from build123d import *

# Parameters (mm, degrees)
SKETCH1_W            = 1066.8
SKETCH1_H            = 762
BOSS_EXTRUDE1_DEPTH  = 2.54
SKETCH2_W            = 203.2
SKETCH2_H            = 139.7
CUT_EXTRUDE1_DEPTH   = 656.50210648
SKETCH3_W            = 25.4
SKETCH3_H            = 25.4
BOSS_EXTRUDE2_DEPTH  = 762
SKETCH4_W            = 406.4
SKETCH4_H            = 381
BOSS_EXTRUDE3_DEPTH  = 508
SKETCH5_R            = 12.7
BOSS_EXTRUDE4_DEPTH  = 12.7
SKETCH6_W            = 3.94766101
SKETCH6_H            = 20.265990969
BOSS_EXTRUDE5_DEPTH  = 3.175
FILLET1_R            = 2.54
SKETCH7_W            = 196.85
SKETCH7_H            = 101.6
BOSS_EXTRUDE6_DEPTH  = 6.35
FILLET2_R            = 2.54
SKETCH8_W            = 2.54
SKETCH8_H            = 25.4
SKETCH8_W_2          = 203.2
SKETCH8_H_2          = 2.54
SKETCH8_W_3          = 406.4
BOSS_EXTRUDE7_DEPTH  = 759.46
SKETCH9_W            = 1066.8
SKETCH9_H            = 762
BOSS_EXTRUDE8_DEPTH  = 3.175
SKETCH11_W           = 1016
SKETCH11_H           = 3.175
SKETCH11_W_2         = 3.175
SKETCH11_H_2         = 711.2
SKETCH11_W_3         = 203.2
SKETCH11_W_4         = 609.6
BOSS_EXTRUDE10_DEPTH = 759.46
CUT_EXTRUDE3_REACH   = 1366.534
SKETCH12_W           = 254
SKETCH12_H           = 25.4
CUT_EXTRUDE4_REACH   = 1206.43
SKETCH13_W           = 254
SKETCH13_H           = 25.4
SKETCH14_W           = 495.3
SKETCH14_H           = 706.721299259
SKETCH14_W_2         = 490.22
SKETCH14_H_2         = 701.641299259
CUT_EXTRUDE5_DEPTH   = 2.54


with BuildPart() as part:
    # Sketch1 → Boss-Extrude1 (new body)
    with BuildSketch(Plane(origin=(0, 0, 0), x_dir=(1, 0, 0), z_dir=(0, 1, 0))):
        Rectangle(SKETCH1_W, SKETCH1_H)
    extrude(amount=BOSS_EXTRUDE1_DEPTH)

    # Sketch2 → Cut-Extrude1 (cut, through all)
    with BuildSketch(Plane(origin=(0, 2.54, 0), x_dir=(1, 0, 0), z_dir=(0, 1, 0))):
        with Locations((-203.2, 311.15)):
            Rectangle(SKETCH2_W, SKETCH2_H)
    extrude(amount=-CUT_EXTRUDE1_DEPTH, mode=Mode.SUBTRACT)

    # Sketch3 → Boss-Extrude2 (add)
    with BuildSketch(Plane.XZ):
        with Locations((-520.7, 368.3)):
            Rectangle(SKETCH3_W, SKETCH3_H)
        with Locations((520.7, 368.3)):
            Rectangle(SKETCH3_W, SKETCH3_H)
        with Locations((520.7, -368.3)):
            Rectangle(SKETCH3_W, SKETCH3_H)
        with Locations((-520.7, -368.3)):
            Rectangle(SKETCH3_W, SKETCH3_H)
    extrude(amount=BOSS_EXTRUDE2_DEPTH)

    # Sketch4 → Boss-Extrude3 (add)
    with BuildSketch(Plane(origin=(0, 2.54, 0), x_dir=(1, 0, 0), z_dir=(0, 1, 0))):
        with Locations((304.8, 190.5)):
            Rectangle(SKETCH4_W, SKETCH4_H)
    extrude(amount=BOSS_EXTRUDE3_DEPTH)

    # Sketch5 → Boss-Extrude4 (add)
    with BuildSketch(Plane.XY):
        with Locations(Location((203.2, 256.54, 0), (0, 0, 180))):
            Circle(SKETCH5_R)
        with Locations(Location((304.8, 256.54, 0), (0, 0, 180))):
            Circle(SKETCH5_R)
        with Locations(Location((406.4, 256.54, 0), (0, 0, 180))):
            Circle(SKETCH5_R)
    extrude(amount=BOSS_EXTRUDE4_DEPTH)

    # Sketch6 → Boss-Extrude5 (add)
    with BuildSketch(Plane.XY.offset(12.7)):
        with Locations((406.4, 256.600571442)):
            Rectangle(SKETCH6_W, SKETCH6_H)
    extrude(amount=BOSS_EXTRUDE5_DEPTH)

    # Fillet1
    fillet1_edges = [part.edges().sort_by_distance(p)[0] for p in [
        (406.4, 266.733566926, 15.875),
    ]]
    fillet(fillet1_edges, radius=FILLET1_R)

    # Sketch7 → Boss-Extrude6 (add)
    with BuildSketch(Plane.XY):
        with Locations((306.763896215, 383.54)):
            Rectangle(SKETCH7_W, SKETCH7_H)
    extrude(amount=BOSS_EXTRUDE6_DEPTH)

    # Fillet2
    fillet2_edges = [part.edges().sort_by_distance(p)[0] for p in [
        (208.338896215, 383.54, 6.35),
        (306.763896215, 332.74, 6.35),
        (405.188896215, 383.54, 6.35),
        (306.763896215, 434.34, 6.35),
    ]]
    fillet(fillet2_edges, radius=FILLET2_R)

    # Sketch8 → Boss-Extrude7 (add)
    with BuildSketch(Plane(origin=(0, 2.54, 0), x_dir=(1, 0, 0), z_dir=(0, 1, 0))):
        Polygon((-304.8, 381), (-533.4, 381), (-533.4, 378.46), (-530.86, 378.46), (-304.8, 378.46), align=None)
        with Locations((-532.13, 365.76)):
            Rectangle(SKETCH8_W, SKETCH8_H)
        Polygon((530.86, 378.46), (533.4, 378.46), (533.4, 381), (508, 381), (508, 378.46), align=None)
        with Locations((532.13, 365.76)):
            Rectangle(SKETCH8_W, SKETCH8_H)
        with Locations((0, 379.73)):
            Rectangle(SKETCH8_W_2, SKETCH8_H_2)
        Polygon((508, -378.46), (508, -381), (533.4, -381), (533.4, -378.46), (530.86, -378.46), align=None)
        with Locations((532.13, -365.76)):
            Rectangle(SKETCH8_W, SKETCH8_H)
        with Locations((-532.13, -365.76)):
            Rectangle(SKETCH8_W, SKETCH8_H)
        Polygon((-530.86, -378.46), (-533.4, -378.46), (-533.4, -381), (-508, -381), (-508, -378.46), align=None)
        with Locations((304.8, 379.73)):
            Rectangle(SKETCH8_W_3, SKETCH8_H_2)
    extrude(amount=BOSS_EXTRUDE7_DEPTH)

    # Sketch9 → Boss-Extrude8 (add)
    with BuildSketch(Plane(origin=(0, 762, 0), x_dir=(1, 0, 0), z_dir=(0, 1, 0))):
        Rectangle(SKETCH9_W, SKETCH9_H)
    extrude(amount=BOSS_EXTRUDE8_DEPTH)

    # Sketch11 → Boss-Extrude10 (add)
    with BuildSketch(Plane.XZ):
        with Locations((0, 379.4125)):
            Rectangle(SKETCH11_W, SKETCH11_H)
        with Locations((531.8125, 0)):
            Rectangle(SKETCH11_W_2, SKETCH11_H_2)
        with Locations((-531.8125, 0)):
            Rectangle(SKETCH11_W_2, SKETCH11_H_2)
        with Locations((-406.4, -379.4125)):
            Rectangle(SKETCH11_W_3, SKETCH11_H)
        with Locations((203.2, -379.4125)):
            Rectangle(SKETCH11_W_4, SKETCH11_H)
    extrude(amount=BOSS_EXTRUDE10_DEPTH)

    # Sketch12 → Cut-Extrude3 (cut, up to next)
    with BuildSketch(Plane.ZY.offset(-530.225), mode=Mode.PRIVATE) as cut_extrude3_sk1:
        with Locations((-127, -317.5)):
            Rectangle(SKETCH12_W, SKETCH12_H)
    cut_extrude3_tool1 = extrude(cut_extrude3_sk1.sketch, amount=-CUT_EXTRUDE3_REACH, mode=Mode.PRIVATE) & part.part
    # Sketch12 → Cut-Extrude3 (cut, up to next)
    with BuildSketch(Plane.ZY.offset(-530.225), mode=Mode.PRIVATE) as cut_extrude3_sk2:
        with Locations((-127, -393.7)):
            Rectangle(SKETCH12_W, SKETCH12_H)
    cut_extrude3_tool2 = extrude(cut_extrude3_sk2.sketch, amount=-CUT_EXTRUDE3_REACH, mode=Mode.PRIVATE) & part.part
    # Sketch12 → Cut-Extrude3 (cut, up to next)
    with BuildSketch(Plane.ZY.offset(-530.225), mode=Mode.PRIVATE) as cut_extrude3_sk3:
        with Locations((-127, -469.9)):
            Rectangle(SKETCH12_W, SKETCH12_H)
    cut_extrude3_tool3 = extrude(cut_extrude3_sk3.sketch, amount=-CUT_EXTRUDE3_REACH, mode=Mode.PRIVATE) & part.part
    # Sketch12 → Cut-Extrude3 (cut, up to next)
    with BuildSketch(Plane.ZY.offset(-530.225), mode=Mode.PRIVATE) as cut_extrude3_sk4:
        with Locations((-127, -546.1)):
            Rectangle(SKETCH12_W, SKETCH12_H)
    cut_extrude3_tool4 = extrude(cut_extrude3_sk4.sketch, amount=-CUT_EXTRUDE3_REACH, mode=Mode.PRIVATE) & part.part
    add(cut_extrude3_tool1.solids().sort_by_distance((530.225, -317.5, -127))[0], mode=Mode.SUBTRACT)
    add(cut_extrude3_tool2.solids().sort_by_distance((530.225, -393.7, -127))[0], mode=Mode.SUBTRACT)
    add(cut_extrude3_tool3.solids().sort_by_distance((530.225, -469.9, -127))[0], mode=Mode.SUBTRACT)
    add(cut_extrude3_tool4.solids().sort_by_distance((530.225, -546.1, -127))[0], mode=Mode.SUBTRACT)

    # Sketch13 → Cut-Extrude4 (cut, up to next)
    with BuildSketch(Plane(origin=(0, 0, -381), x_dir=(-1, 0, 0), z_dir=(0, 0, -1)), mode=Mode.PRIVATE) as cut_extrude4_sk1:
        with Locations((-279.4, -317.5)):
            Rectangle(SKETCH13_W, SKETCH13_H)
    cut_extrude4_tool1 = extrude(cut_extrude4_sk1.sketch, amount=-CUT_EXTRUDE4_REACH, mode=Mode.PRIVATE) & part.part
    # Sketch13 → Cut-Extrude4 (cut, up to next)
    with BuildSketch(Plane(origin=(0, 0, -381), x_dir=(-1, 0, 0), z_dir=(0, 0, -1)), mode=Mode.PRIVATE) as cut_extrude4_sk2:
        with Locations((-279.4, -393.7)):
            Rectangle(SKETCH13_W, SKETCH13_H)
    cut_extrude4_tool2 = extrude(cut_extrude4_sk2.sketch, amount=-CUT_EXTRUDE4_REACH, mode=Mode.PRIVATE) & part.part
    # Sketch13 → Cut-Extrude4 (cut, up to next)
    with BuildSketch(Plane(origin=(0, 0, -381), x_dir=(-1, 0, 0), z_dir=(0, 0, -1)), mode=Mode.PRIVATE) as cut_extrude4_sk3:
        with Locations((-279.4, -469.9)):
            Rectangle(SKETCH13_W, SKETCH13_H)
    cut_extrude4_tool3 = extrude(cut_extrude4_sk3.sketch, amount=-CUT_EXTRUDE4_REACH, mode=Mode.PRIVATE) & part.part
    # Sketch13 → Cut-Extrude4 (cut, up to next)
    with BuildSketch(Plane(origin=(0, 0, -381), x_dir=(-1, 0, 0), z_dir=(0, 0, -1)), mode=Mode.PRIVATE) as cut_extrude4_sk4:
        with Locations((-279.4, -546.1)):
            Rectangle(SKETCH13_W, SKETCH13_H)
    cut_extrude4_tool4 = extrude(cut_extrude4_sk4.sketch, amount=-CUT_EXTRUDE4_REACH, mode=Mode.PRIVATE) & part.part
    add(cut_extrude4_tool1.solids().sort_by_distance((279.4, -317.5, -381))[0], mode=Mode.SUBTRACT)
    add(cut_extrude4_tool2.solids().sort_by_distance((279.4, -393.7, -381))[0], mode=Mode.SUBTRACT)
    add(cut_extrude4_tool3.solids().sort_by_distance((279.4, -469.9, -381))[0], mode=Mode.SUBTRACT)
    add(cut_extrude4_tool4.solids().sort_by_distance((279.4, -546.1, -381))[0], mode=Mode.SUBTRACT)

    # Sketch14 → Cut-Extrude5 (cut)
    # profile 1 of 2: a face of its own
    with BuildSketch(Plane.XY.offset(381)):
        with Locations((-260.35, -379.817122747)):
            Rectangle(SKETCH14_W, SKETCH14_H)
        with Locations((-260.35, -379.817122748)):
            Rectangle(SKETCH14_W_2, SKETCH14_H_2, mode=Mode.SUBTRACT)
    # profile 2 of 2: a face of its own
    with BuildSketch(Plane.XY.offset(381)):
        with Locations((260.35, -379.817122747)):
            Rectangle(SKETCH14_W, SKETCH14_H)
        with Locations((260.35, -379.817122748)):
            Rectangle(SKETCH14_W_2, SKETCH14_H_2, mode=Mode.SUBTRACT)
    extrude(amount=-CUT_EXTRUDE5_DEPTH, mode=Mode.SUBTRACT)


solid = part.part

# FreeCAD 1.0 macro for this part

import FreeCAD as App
import Part
import Sketcher
from FreeCAD import Vector
Q = App.Units.Quantity


def edges_at(feature, points):
    """Names of the edges that pass closest to the given points."""
    edges = feature.Shape.Edges
    near = lambda p: min(range(len(edges)), key=lambda i: edges[i].distToShape(Part.Vertex(*p))[0])
    return sorted({f"Edge{near(p) + 1}" for p in points})


def add_polygon(sketch, points):
    """Adds a closed chain of lines whose ends are joined by coincident constraints."""
    first, n = sketch.GeometryCount, len(points)
    for a, b in zip(points, points[1:] + points[:1]):
        sketch.addGeometry(Part.LineSegment(App.Vector(*a, 0), App.Vector(*b, 0)), False)
    for i in range(n):
        sketch.addConstraint(Sketcher.Constraint("Coincident", first + i, 2, first + (i + 1) % n, 1))

doc = App.newDocument("Part")
params = doc.addObject("Spreadsheet::Sheet", "Params")
for row, (alias, value) in enumerate([
    ("sketch1_width", "42 in"),
    ("sketch1_height", "30 in"),
    ("pad1_length", "0.1 in"),
    ("sketch2_width", "8 in"),
    ("sketch2_height", "5.5 in"),
    ("sketch3_width", "1 in"),
    ("pad2_length", "30 in"),
    ("sketch4_width", "16 in"),
    ("sketch4_height", "15 in"),
    ("pad3_length", "20 in"),
    ("sketch5_diameter", "1 in"),
    ("pad4_length", "0.5 in"),
    ("pad5_length", "0.125 in"),
    ("fillet_radius", "0.1 in"),
    ("sketch7_height", "4 in"),
    ("sketch7_width", "7.75 in"),
    ("pad6_length", "0.25 in"),
    ("fillet2_radius", "0.1 in"),
    ("sketch8_width", "9 in"),
    ("sketch8_width2", "25 in"),
    ("sketch8_width3", "1 in"),
    ("sketch8_width4", "0.1 in"),
    ("pad7_length", "29.9 in"),
    ("sketch9_width", "42 in"),
    ("sketch9_height", "30 in"),
    ("pad8_length", "0.125 in"),
    ("sketch10_width", "40 in"),
    ("sketch10_width2", "8 in"),
    ("sketch10_width3", "24 in"),
    ("sketch10_height", "28 in"),
    ("sketch10_width4", "0.125 in"),
    ("pad9_length", "29.9 in"),
    ("sketch11_width", "1 in"),
    ("sketch11_height", "10 in"),
    ("sketch12_width", "1 in"),
    ("sketch12_height", "10 in"),
    ("sketch13_width", "1 in"),
    ("sketch13_height", "10 in"),
    ("sketch14_width", "1 in"),
    ("sketch14_height", "10 in"),
    ("sketch15_width", "10 in"),
    ("sketch15_height", "1 in"),
    ("sketch16_width", "10 in"),
    ("sketch16_height", "1 in"),
    ("sketch17_width", "10 in"),
    ("sketch17_height", "1 in"),
    ("sketch18_width", "10 in"),
    ("sketch18_height", "1 in"),
    ("sketch19_width", "19.5 in"),
    ("sketch19_width2", "19.3 in"),
    ("pocket10_length", "0.1 in"),
], start=1):
    params.set(f"A{row}", alias)
    params.set(f"B{row}", "=" + value)
    params.setAlias(f"B{row}", alias)

body = doc.addObject("PartDesign::Body", "Body")

# Sketch on XZ plane
sketch1 = body.newObject("Sketcher::SketchObject", "Sketch")
sketch1.AttachmentSupport = (doc.getObject("XZ_Plane"), [""])
sketch1.MapMode = "FlatFace"
add_polygon(sketch1, [(-533, -381), (-533, 381), (533, 381), (533, -381)])  # lines 0-3
sketch1.addConstraint(Sketcher.Constraint("Vertical", 0))
sketch1.addConstraint(Sketcher.Constraint("Horizontal", 1))
sketch1.addConstraint(Sketcher.Constraint("Vertical", 2))
sketch1.addConstraint(Sketcher.Constraint("Horizontal", 3))
sketch1.addConstraint(Sketcher.Constraint("Symmetric", 0, 2, 2, 2, -1, 1))
sketch1.addConstraint(Sketcher.Constraint("DistanceX", 1, 1, 1, 2, Q("42 in")))
sketch1.addConstraint(Sketcher.Constraint("DistanceY", 0, 1, 0, 2, Q("30 in")))
sketch1.setExpression("Constraints[9]", "Params.sketch1_width")
sketch1.setExpression("Constraints[10]", "Params.sketch1_height")
pad1 = body.newObject("PartDesign::Pad", "Pad")
pad1.Profile = sketch1
pad1.setExpression("Length", "Params.pad1_length")
pad1.Reversed = True

# Sketch on XZ plane
sketch2 = body.newObject("Sketcher::SketchObject", "Sketch001")
sketch2.AttachmentSupport = (doc.getObject("XZ_Plane"), [""])
sketch2.MapMode = "FlatFace"
sketch2.AttachmentOffset = App.Placement(Vector(0, 0, -0.1 * 25.4), App.Rotation())
add_polygon(sketch2, [(-305, -381), (-305, -241), (-102, -241), (-102, -381)])  # lines 0-3
sketch2.addConstraint(Sketcher.Constraint("Vertical", 0))
sketch2.addConstraint(Sketcher.Constraint("Horizontal", 1))
sketch2.addConstraint(Sketcher.Constraint("Vertical", 2))
sketch2.addConstraint(Sketcher.Constraint("Horizontal", 3))
sketch2.addConstraint(Sketcher.Constraint("DistanceX", 1, 1, 1, 2, Q("8 in")))
sketch2.addConstraint(Sketcher.Constraint("DistanceY", 0, 1, 0, 2, Q("5.5 in")))
sketch2.addConstraint(Sketcher.Constraint("DistanceX", 0, 2, -1, 1, Q("12 in")))
sketch2.addConstraint(Sketcher.Constraint("DistanceY", 2, 2, -1, 1, Q("15 in")))
sketch2.setExpression("Constraints[8]", "Params.sketch2_width")
sketch2.setExpression("Constraints[9]", "Params.sketch2_height")
pocket1 = body.newObject("PartDesign::Pocket", "Pocket")
pocket1.Profile = sketch2
pocket1.Type = "ThroughAll"
pocket1.Reversed = True

# Sketch on XZ plane
sketch3 = body.newObject("Sketcher::SketchObject", "Sketch002")
sketch3.AttachmentSupport = (doc.getObject("XZ_Plane"), [""])
sketch3.MapMode = "FlatFace"
add_polygon(sketch3, [(-533, 381), (-533, 356), (-508, 356), (-508, 381)])  # lines 0-3
add_polygon(sketch3, [(508, 381), (508, 356), (533, 356), (533, 381)])  # lines 4-7
add_polygon(sketch3, [(508, -356), (508, -381), (533, -381), (533, -356)])  # lines 8-11
add_polygon(sketch3, [(-533, -356), (-533, -381), (-508, -381), (-508, -356)])  # lines 12-15
sketch3.addConstraint(Sketcher.Constraint("Vertical", 0))
sketch3.addConstraint(Sketcher.Constraint("Horizontal", 1))
sketch3.addConstraint(Sketcher.Constraint("Vertical", 2))
sketch3.addConstraint(Sketcher.Constraint("Horizontal", 3))
sketch3.addConstraint(Sketcher.Constraint("Vertical", 4))
sketch3.addConstraint(Sketcher.Constraint("Horizontal", 5))
sketch3.addConstraint(Sketcher.Constraint("Vertical", 6))
sketch3.addConstraint(Sketcher.Constraint("Horizontal", 7))
sketch3.addConstraint(Sketcher.Constraint("Vertical", 8))
sketch3.addConstraint(Sketcher.Constraint("Horizontal", 9))
sketch3.addConstraint(Sketcher.Constraint("Vertical", 10))
sketch3.addConstraint(Sketcher.Constraint("Horizontal", 11))
sketch3.addConstraint(Sketcher.Constraint("Vertical", 12))
sketch3.addConstraint(Sketcher.Constraint("Horizontal", 13))
sketch3.addConstraint(Sketcher.Constraint("Vertical", 14))
sketch3.addConstraint(Sketcher.Constraint("Horizontal", 15))
sketch3.addConstraint(Sketcher.Constraint("Symmetric", 2, 2, 8, 2, -1, 1))
sketch3.addConstraint(Sketcher.Constraint("Symmetric", 0, 2, 10, 2, -1, 1))
sketch3.addConstraint(Sketcher.Constraint("Symmetric", 6, 2, 12, 2, -1, 1))
sketch3.addConstraint(Sketcher.Constraint("Symmetric", 4, 2, 14, 2, -1, 1))
sketch3.addConstraint(Sketcher.Constraint("Symmetric", 1, 2, 4, 2, -2))
sketch3.addConstraint(Sketcher.Constraint("Symmetric", 3, 2, 6, 2, -2))
sketch3.addConstraint(Sketcher.Constraint("Equal", 15, 0))
sketch3.addConstraint(Sketcher.Constraint("DistanceX", 1, 1, 1, 2, Q("1 in")))
sketch3.addConstraint(Sketcher.Constraint("DistanceX", 0, 2, -1, 1, Q("21 in")))
sketch3.addConstraint(Sketcher.Constraint("DistanceY", -1, 1, 0, 2, Q("14 in")))
sketch3.setExpression("Constraints[39]", "Params.sketch3_width")
pad2 = body.newObject("PartDesign::Pad", "Pad001")
pad2.Profile = sketch3
pad2.setExpression("Length", "Params.pad2_length")

# Sketch on XZ plane
sketch4 = body.newObject("Sketcher::SketchObject", "Sketch003")
sketch4.AttachmentSupport = (doc.getObject("XZ_Plane"), [""])
sketch4.MapMode = "FlatFace"
sketch4.AttachmentOffset = App.Placement(Vector(0, 0, -0.1 * 25.4), App.Rotation())
add_polygon(sketch4, [(102, -381), (102, 0), (508, 0), (508, -381)])  # lines 0-3
sketch4.addConstraint(Sketcher.Constraint("Vertical", 0))
sketch4.addConstraint(Sketcher.Constraint("Horizontal", 1))
sketch4.addConstraint(Sketcher.Constraint("Vertical", 2))
sketch4.addConstraint(Sketcher.Constraint("Horizontal", 3))
sketch4.addConstraint(Sketcher.Constraint("PointOnObject", 0, 2, -1))
sketch4.addConstraint(Sketcher.Constraint("DistanceX", 1, 1, 1, 2, Q("16 in")))
sketch4.addConstraint(Sketcher.Constraint("DistanceY", 0, 1, 0, 2, Q("15 in")))
sketch4.addConstraint(Sketcher.Constraint("DistanceX", -1, 1, 0, 2, Q("4 in")))
sketch4.setExpression("Constraints[9]", "Params.sketch4_width")
sketch4.setExpression("Constraints[10]", "Params.sketch4_height")
pad3 = body.newObject("PartDesign::Pad", "Pad002")
pad3.Profile = sketch4
pad3.setExpression("Length", "Params.pad3_length")
pad3.Reversed = True

# Sketch on XY plane
sketch5 = body.newObject("Sketcher::SketchObject", "Sketch004")
sketch5.AttachmentSupport = (doc.getObject("XY_Plane"), [""])
sketch5.MapMode = "FlatFace"
sketch5.addGeometry(Part.Circle(Vector(203, 257, 0), Vector(0, 0, 1), 13), False)
sketch5.addGeometry(Part.Circle(Vector(305, 257, 0), Vector(0, 0, 1), 13), False)
sketch5.addGeometry(Part.Circle(Vector(406, 257, 0), Vector(0, 0, 1), 13), False)
sketch5.addConstraint(Sketcher.Constraint("Equal", 0, 1))
sketch5.addConstraint(Sketcher.Constraint("Equal", 1, 2))
sketch5.addConstraint(Sketcher.Constraint("Horizontal", 0, 3, 1, 3))
sketch5.addConstraint(Sketcher.Constraint("Horizontal", 1, 3, 2, 3))
sketch5.addConstraint(Sketcher.Constraint("Diameter", 0, Q("1 in")))
sketch5.addConstraint(Sketcher.Constraint("DistanceX", -1, 1, 0, 3, Q("8 in")))
sketch5.addConstraint(Sketcher.Constraint("DistanceX", -1, 1, 1, 3, Q("12 in")))
sketch5.addConstraint(Sketcher.Constraint("DistanceX", -1, 1, 2, 3, Q("16 in")))
sketch5.addConstraint(Sketcher.Constraint("DistanceY", -1, 1, 0, 3, Q("10.1 in")))
sketch5.setExpression("Constraints[4]", "Params.sketch5_diameter")
pad4 = body.newObject("PartDesign::Pad", "Pad003")
pad4.Profile = sketch5
pad4.setExpression("Length", "Params.pad4_length")

# Sketch on XY plane
sketch6 = body.newObject("Sketcher::SketchObject", "Sketch005")
sketch6.AttachmentSupport = (doc.getObject("XY_Plane"), [""])
sketch6.MapMode = "FlatFace"
sketch6.AttachmentOffset = App.Placement(Vector(0, 0, 0.5 * 25.4), App.Rotation())
add_polygon(sketch6, [(404.4, 266.7), (404.4, 246.5), (408.4, 246.5), (408.4, 266.7)])  # lines 0-3
sketch6.addConstraint(Sketcher.Constraint("Vertical", 0))
sketch6.addConstraint(Sketcher.Constraint("Horizontal", 1))
sketch6.addConstraint(Sketcher.Constraint("Vertical", 2))
sketch6.addConstraint(Sketcher.Constraint("Horizontal", 3))
sketch6.addConstraint(Sketcher.Constraint("DistanceX", 1, 1, 1, 2, Q("3.947661 mm")))
sketch6.addConstraint(Sketcher.Constraint("DistanceY", 0, 2, 0, 1, Q("20.265991 mm")))
sketch6.addConstraint(Sketcher.Constraint("DistanceX", -1, 1, 0, 2, Q("404.426169 mm")))
sketch6.addConstraint(Sketcher.Constraint("DistanceY", -1, 1, 0, 2, Q("246.467576 mm")))
pad5 = body.newObject("PartDesign::Pad", "Pad004")
pad5.Profile = sketch6
pad5.setExpression("Length", "Params.pad5_length")
doc.recompute()

fillet = body.newObject("PartDesign::Fillet", "Fillet")
fillet.Base = (pad5, edges_at(pad5, [(406.4, 266.734, 15.875)]))
fillet.setExpression("Radius", "Params.fillet_radius")

# Sketch on XY plane
sketch7 = body.newObject("Sketcher::SketchObject", "Sketch006")
sketch7.AttachmentSupport = (doc.getObject("XY_Plane"), [""])
sketch7.MapMode = "FlatFace"
add_polygon(sketch7, [(208, 434), (208, 333), (405, 333), (405, 434)])  # lines 0-3
sketch7.addConstraint(Sketcher.Constraint("Vertical", 0))
sketch7.addConstraint(Sketcher.Constraint("Horizontal", 1))
sketch7.addConstraint(Sketcher.Constraint("Vertical", 2))
sketch7.addConstraint(Sketcher.Constraint("Horizontal", 3))
sketch7.addConstraint(Sketcher.Constraint("DistanceY", 0, 2, 0, 1, Q("4 in")))
sketch7.addConstraint(Sketcher.Constraint("DistanceX", 1, 1, 1, 2, Q("7.75 in")))
sketch7.addConstraint(Sketcher.Constraint("DistanceY", -1, 1, 0, 2, Q("13.1 in")))
sketch7.addConstraint(Sketcher.Constraint("DistanceX", -1, 1, 0, 2, Q("208.338896 mm")))
sketch7.setExpression("Constraints[8]", "Params.sketch7_height")
sketch7.setExpression("Constraints[9]", "Params.sketch7_width")
pad6 = body.newObject("PartDesign::Pad", "Pad005")
pad6.Profile = sketch7
pad6.setExpression("Length", "Params.pad6_length")
doc.recompute()

fillet2 = body.newObject("PartDesign::Fillet", "Fillet001")
fillet2.Base = (pad6, edges_at(pad6, [
    (208.339, 383.54, 6.35),
    (306.764, 332.74, 6.35),
    (405.189, 383.54, 6.35),
    (306.764, 434.34, 6.35),
]))
fillet2.setExpression("Radius", "Params.fillet2_radius")

# Sketch on XZ plane
sketch8 = body.newObject("Sketcher::SketchObject", "Sketch007")
sketch8.AttachmentSupport = (doc.getObject("XZ_Plane"), [""])
sketch8.MapMode = "FlatFace"
sketch8.AttachmentOffset = App.Placement(Vector(0, 0, -0.1 * 25.4), App.Rotation())
add_polygon(sketch8, [(-304.8, -381), (-533.4, -381), (-533.4, -353.1), (-530.9, -353.1), (-530.9, -378.5), (-304.8, -378.5)])  # lines 0-5
add_polygon(sketch8, [(533.4, -381), (-101.6, -381), (-101.6, -378.5), (530.9, -378.5), (530.9, -353.1), (533.4, -353.1)])  # lines 6-11
add_polygon(sketch8, [(508, 378.5), (508, 381), (533.4, 381), (533.4, 353.1), (530.9, 353.1), (530.9, 378.5)])  # lines 12-17
add_polygon(sketch8, [(-533.4, 353.1), (-533.4, 381), (-508, 381), (-508, 378.5), (-530.9, 378.5), (-530.9, 353.1)])  # lines 18-23
sketch8.addConstraint(Sketcher.Constraint("Horizontal", 0))
sketch8.addConstraint(Sketcher.Constraint("Vertical", 1))
sketch8.addConstraint(Sketcher.Constraint("Horizontal", 2))
sketch8.addConstraint(Sketcher.Constraint("Vertical", 3))
sketch8.addConstraint(Sketcher.Constraint("Horizontal", 4))
sketch8.addConstraint(Sketcher.Constraint("Vertical", 5))
sketch8.addConstraint(Sketcher.Constraint("Horizontal", 6))
sketch8.addConstraint(Sketcher.Constraint("Vertical", 7))
sketch8.addConstraint(Sketcher.Constraint("Horizontal", 8))
sketch8.addConstraint(Sketcher.Constraint("Vertical", 9))
sketch8.addConstraint(Sketcher.Constraint("Horizontal", 10))
sketch8.addConstraint(Sketcher.Constraint("Vertical", 11))
sketch8.addConstraint(Sketcher.Constraint("Vertical", 12))
sketch8.addConstraint(Sketcher.Constraint("Horizontal", 13))
sketch8.addConstraint(Sketcher.Constraint("Vertical", 14))
sketch8.addConstraint(Sketcher.Constraint("Horizontal", 15))
sketch8.addConstraint(Sketcher.Constraint("Vertical", 16))
sketch8.addConstraint(Sketcher.Constraint("Horizontal", 17))
sketch8.addConstraint(Sketcher.Constraint("Vertical", 18))
sketch8.addConstraint(Sketcher.Constraint("Horizontal", 19))
sketch8.addConstraint(Sketcher.Constraint("Vertical", 20))
sketch8.addConstraint(Sketcher.Constraint("Horizontal", 21))
sketch8.addConstraint(Sketcher.Constraint("Vertical", 22))
sketch8.addConstraint(Sketcher.Constraint("Horizontal", 23))
sketch8.addConstraint(Sketcher.Constraint("Symmetric", 0, 2, 13, 2, -1, 1))
sketch8.addConstraint(Sketcher.Constraint("Symmetric", 2, 2, 15, 2, -1, 1))
sketch8.addConstraint(Sketcher.Constraint("Symmetric", 11, 2, 18, 2, -1, 1))
sketch8.addConstraint(Sketcher.Constraint("Symmetric", 8, 2, 21, 2, -1, 1))
sketch8.addConstraint(Sketcher.Constraint("Symmetric", 3, 2, 8, 2, -2))
sketch8.addConstraint(Sketcher.Constraint("Symmetric", 1, 2, 10, 2, -2))
sketch8.addConstraint(Sketcher.Constraint("Symmetric", 12, 2, 19, 2, -2))
sketch8.addConstraint(Sketcher.Constraint("Horizontal", 17, 2, 20, 2))
sketch8.addConstraint(Sketcher.Constraint("Horizontal", 15, 2, 22, 2))
sketch8.addConstraint(Sketcher.Constraint("Equal", 19, 3))
sketch8.addConstraint(Sketcher.Constraint("Equal", 23, 5))
sketch8.addConstraint(Sketcher.Constraint("DistanceX", 0, 2, 0, 1, Q("9 in")))
sketch8.addConstraint(Sketcher.Constraint("DistanceX", 6, 2, 6, 1, Q("25 in")))
sketch8.addConstraint(Sketcher.Constraint("DistanceX", 13, 1, 13, 2, Q("1 in")))
sketch8.addConstraint(Sketcher.Constraint("DistanceX", 2, 1, 2, 2, Q("0.1 in")))
sketch8.addConstraint(Sketcher.Constraint("DistanceX", 0, 2, -1, 1, Q("21 in")))
sketch8.addConstraint(Sketcher.Constraint("DistanceY", 0, 2, -1, 1, Q("15 in")))
sketch8.setExpression("Constraints[59]", "Params.sketch8_width")
sketch8.setExpression("Constraints[60]", "Params.sketch8_width2")
sketch8.setExpression("Constraints[61]", "Params.sketch8_width3")
sketch8.setExpression("Constraints[62]", "Params.sketch8_width4")
pad7 = body.newObject("PartDesign::Pad", "Pad006")
pad7.Profile = sketch8
pad7.setExpression("Length", "Params.pad7_length")
pad7.Reversed = True

# Sketch on XZ plane
sketch9 = body.newObject("Sketcher::SketchObject", "Sketch008")
sketch9.AttachmentSupport = (doc.getObject("XZ_Plane"), [""])
sketch9.MapMode = "FlatFace"
sketch9.AttachmentOffset = App.Placement(Vector(0, 0, -30 * 25.4), App.Rotation())
add_polygon(sketch9, [(-533, -381), (-533, 381), (533, 381), (533, -381)])  # lines 0-3
sketch9.addConstraint(Sketcher.Constraint("Vertical", 0))
sketch9.addConstraint(Sketcher.Constraint("Horizontal", 1))
sketch9.addConstraint(Sketcher.Constraint("Vertical", 2))
sketch9.addConstraint(Sketcher.Constraint("Horizontal", 3))
sketch9.addConstraint(Sketcher.Constraint("Symmetric", 0, 2, 2, 2, -1, 1))
sketch9.addConstraint(Sketcher.Constraint("DistanceX", 1, 1, 1, 2, Q("42 in")))
sketch9.addConstraint(Sketcher.Constraint("DistanceY", 0, 1, 0, 2, Q("30 in")))
sketch9.setExpression("Constraints[9]", "Params.sketch9_width")
sketch9.setExpression("Constraints[10]", "Params.sketch9_height")
pad8 = body.newObject("PartDesign::Pad", "Pad007")
pad8.Profile = sketch9
pad8.setExpression("Length", "Params.pad8_length")
pad8.Reversed = True

# Sketch on XZ plane
sketch10 = body.newObject("Sketcher::SketchObject", "Sketch009")
sketch10.AttachmentSupport = (doc.getObject("XZ_Plane"), [""])
sketch10.MapMode = "FlatFace"
add_polygon(sketch10, [(-508, 381), (-508, 377.8), (508, 377.8), (508, 381)])  # lines 0-3
add_polygon(sketch10, [(530.2, 355.6), (530.2, -355.6), (533.4, -355.6), (533.4, 355.6)])  # lines 4-7
add_polygon(sketch10, [(-533.4, 355.6), (-533.4, -355.6), (-530.2, -355.6), (-530.2, 355.6)])  # lines 8-11
add_polygon(sketch10, [(-508, -377.8), (-508, -381), (-304.8, -381), (-304.8, -377.8)])  # lines 12-15
add_polygon(sketch10, [(-101.6, -377.8), (-101.6, -381), (508, -381), (508, -377.8)])  # lines 16-19
sketch10.addConstraint(Sketcher.Constraint("Vertical", 0))
sketch10.addConstraint(Sketcher.Constraint("Horizontal", 1))
sketch10.addConstraint(Sketcher.Constraint("Vertical", 2))
sketch10.addConstraint(Sketcher.Constraint("Horizontal", 3))
sketch10.addConstraint(Sketcher.Constraint("Vertical", 4))
sketch10.addConstraint(Sketcher.Constraint("Horizontal", 5))
sketch10.addConstraint(Sketcher.Constraint("Vertical", 6))
sketch10.addConstraint(Sketcher.Constraint("Horizontal", 7))
sketch10.addConstraint(Sketcher.Constraint("Vertical", 8))
sketch10.addConstraint(Sketcher.Constraint("Horizontal", 9))
sketch10.addConstraint(Sketcher.Constraint("Vertical", 10))
sketch10.addConstraint(Sketcher.Constraint("Horizontal", 11))
sketch10.addConstraint(Sketcher.Constraint("Vertical", 12))
sketch10.addConstraint(Sketcher.Constraint("Horizontal", 13))
sketch10.addConstraint(Sketcher.Constraint("Vertical", 14))
sketch10.addConstraint(Sketcher.Constraint("Horizontal", 15))
sketch10.addConstraint(Sketcher.Constraint("Vertical", 16))
sketch10.addConstraint(Sketcher.Constraint("Horizontal", 17))
sketch10.addConstraint(Sketcher.Constraint("Vertical", 18))
sketch10.addConstraint(Sketcher.Constraint("Horizontal", 19))
sketch10.addConstraint(Sketcher.Constraint("Symmetric", 6, 2, 8, 2, -1, 1))
sketch10.addConstraint(Sketcher.Constraint("Symmetric", 4, 2, 10, 2, -1, 1))
sketch10.addConstraint(Sketcher.Constraint("Symmetric", 2, 2, 12, 2, -1, 1))
sketch10.addConstraint(Sketcher.Constraint("Symmetric", 3, 2, 17, 2, -1, 1))
sketch10.addConstraint(Sketcher.Constraint("Symmetric", 15, 2, 18, 2, -2))
sketch10.addConstraint(Sketcher.Constraint("Horizontal", 5, 2, 8, 2))
sketch10.addConstraint(Sketcher.Constraint("Equal", 11, 0))
sketch10.addConstraint(Sketcher.Constraint("Equal", 2, 12))
sketch10.addConstraint(Sketcher.Constraint("DistanceX", 1, 1, 1, 2, Q("40 in")))
sketch10.addConstraint(Sketcher.Constraint("DistanceX", 13, 1, 13, 2, Q("8 in")))
sketch10.addConstraint(Sketcher.Constraint("DistanceX", 17, 1, 17, 2, Q("24 in")))
sketch10.addConstraint(Sketcher.Constraint("DistanceY", 4, 2, 4, 1, Q("28 in")))
sketch10.addConstraint(Sketcher.Constraint("DistanceY", -1, 1, 2, 2, Q("15 in")))
sketch10.addConstraint(Sketcher.Constraint("DistanceX", -1, 1, 5, 2, Q("21 in")))
sketch10.addConstraint(Sketcher.Constraint("DistanceX", 5, 1, 5, 2, Q("0.125 in")))
sketch10.setExpression("Constraints[48]", "Params.sketch10_width")
sketch10.setExpression("Constraints[49]", "Params.sketch10_width2")
sketch10.setExpression("Constraints[50]", "Params.sketch10_width3")
sketch10.setExpression("Constraints[51]", "Params.sketch10_height")
sketch10.setExpression("Constraints[54]", "Params.sketch10_width4")
pad9 = body.newObject("PartDesign::Pad", "Pad008")
pad9.Profile = sketch10
pad9.setExpression("Length", "Params.pad9_length")

# Sketch on YZ plane
sketch11 = body.newObject("Sketcher::SketchObject", "Sketch010")
sketch11.AttachmentSupport = (doc.getObject("YZ_Plane"), [""])
sketch11.MapMode = "FlatFace"
sketch11.AttachmentOffset = App.Placement(Vector(0, 0, 20.875 * 25.4), App.Rotation())
add_polygon(sketch11, [(-305, -254), (-330, -254), (-330, 0), (-305, 0)])  # lines 0-3
sketch11.addConstraint(Sketcher.Constraint("Horizontal", 0))
sketch11.addConstraint(Sketcher.Constraint("Vertical", 1))
sketch11.addConstraint(Sketcher.Constraint("Horizontal", 2))
sketch11.addConstraint(Sketcher.Constraint("Vertical", 3))
sketch11.addConstraint(Sketcher.Constraint("PointOnObject", 1, 2, -1))
sketch11.addConstraint(Sketcher.Constraint("DistanceX", 0, 2, 0, 1, Q("1 in")))
sketch11.addConstraint(Sketcher.Constraint("DistanceY", 1, 1, 1, 2, Q("10 in")))
sketch11.addConstraint(Sketcher.Constraint("DistanceX", 0, 2, -1, 1, Q("13 in")))
sketch11.setExpression("Constraints[9]", "Params.sketch11_width")
sketch11.setExpression("Constraints[10]", "Params.sketch11_height")
pocket2 = body.newObject("PartDesign::Pocket", "Pocket001")
pocket2.Profile = sketch11
pocket2.Type = "UpToFirst"
pocket2.Reversed = True

# Sketch on YZ plane
sketch12 = body.newObject("Sketcher::SketchObject", "Sketch011")
sketch12.AttachmentSupport = (doc.getObject("YZ_Plane"), [""])
sketch12.MapMode = "FlatFace"
sketch12.AttachmentOffset = App.Placement(Vector(0, 0, 20.875 * 25.4), App.Rotation())
add_polygon(sketch12, [(-381, -254), (-406, -254), (-406, 0), (-381, 0)])  # lines 0-3
sketch12.addConstraint(Sketcher.Constraint("Horizontal", 0))
sketch12.addConstraint(Sketcher.Constraint("Vertical", 1))
sketch12.addConstraint(Sketcher.Constraint("Horizontal", 2))
sketch12.addConstraint(Sketcher.Constraint("Vertical", 3))
sketch12.addConstraint(Sketcher.Constraint("PointOnObject", 1, 2, -1))
sketch12.addConstraint(Sketcher.Constraint("DistanceX", 0, 2, 0, 1, Q("1 in")))
sketch12.addConstraint(Sketcher.Constraint("DistanceY", 1, 1, 1, 2, Q("10 in")))
sketch12.addConstraint(Sketcher.Constraint("DistanceX", 0, 2, -1, 1, Q("16 in")))
sketch12.setExpression("Constraints[9]", "Params.sketch12_width")
sketch12.setExpression("Constraints[10]", "Params.sketch12_height")
pocket3 = body.newObject("PartDesign::Pocket", "Pocket002")
pocket3.Profile = sketch12
pocket3.Type = "UpToFirst"
pocket3.Reversed = True

# Sketch on YZ plane
sketch13 = body.newObject("Sketcher::SketchObject", "Sketch012")
sketch13.AttachmentSupport = (doc.getObject("YZ_Plane"), [""])
sketch13.MapMode = "FlatFace"
sketch13.AttachmentOffset = App.Placement(Vector(0, 0, 20.875 * 25.4), App.Rotation())
add_polygon(sketch13, [(-457, -254), (-483, -254), (-483, 0), (-457, 0)])  # lines 0-3
sketch13.addConstraint(Sketcher.Constraint("Horizontal", 0))
sketch13.addConstraint(Sketcher.Constraint("Vertical", 1))
sketch13.addConstraint(Sketcher.Constraint("Horizontal", 2))
sketch13.addConstraint(Sketcher.Constraint("Vertical", 3))
sketch13.addConstraint(Sketcher.Constraint("PointOnObject", 1, 2, -1))
sketch13.addConstraint(Sketcher.Constraint("DistanceX", 0, 2, 0, 1, Q("1 in")))
sketch13.addConstraint(Sketcher.Constraint("DistanceY", 1, 1, 1, 2, Q("10 in")))
sketch13.addConstraint(Sketcher.Constraint("DistanceX", 0, 2, -1, 1, Q("19 in")))
sketch13.setExpression("Constraints[9]", "Params.sketch13_width")
sketch13.setExpression("Constraints[10]", "Params.sketch13_height")
pocket4 = body.newObject("PartDesign::Pocket", "Pocket003")
pocket4.Profile = sketch13
pocket4.Type = "UpToFirst"
pocket4.Reversed = True

# Sketch on YZ plane
sketch14 = body.newObject("Sketcher::SketchObject", "Sketch013")
sketch14.AttachmentSupport = (doc.getObject("YZ_Plane"), [""])
sketch14.MapMode = "FlatFace"
sketch14.AttachmentOffset = App.Placement(Vector(0, 0, 20.875 * 25.4), App.Rotation())
add_polygon(sketch14, [(-533, -254), (-559, -254), (-559, 0), (-533, 0)])  # lines 0-3
sketch14.addConstraint(Sketcher.Constraint("Horizontal", 0))
sketch14.addConstraint(Sketcher.Constraint("Vertical", 1))
sketch14.addConstraint(Sketcher.Constraint("Horizontal", 2))
sketch14.addConstraint(Sketcher.Constraint("Vertical", 3))
sketch14.addConstraint(Sketcher.Constraint("PointOnObject", 1, 2, -1))
sketch14.addConstraint(Sketcher.Constraint("DistanceX", 0, 2, 0, 1, Q("1 in")))
sketch14.addConstraint(Sketcher.Constraint("DistanceY", 1, 1, 1, 2, Q("10 in")))
sketch14.addConstraint(Sketcher.Constraint("DistanceX", 0, 2, -1, 1, Q("22 in")))
sketch14.setExpression("Constraints[9]", "Params.sketch14_width")
sketch14.setExpression("Constraints[10]", "Params.sketch14_height")
pocket5 = body.newObject("PartDesign::Pocket", "Pocket004")
pocket5.Profile = sketch14
pocket5.Type = "UpToFirst"
pocket5.Reversed = True

# Sketch on XY plane
sketch15 = body.newObject("Sketcher::SketchObject", "Sketch014")
sketch15.AttachmentSupport = (doc.getObject("XY_Plane"), [""])
sketch15.MapMode = "FlatFace"
sketch15.AttachmentOffset = App.Placement(Vector(0, 0, -15 * 25.4), App.Rotation())
add_polygon(sketch15, [(406, -305), (406, -330), (152, -330), (152, -305)])  # lines 0-3
sketch15.addConstraint(Sketcher.Constraint("Vertical", 0))
sketch15.addConstraint(Sketcher.Constraint("Horizontal", 1))
sketch15.addConstraint(Sketcher.Constraint("Vertical", 2))
sketch15.addConstraint(Sketcher.Constraint("Horizontal", 3))
sketch15.addConstraint(Sketcher.Constraint("DistanceX", 1, 2, 1, 1, Q("10 in")))
sketch15.addConstraint(Sketcher.Constraint("DistanceY", 0, 2, 0, 1, Q("1 in")))
sketch15.addConstraint(Sketcher.Constraint("DistanceX", -1, 1, 0, 2, Q("16 in")))
sketch15.addConstraint(Sketcher.Constraint("DistanceY", 0, 2, -1, 1, Q("13 in")))
sketch15.setExpression("Constraints[8]", "Params.sketch15_width")
sketch15.setExpression("Constraints[9]", "Params.sketch15_height")
pocket6 = body.newObject("PartDesign::Pocket", "Pocket005")
pocket6.Profile = sketch15
pocket6.Type = "UpToFirst"
pocket6.Reversed = True

# Sketch on XY plane
sketch16 = body.newObject("Sketcher::SketchObject", "Sketch015")
sketch16.AttachmentSupport = (doc.getObject("XY_Plane"), [""])
sketch16.MapMode = "FlatFace"
sketch16.AttachmentOffset = App.Placement(Vector(0, 0, -15 * 25.4), App.Rotation())
add_polygon(sketch16, [(406, -381), (406, -406), (152, -406), (152, -381)])  # lines 0-3
sketch16.addConstraint(Sketcher.Constraint("Vertical", 0))
sketch16.addConstraint(Sketcher.Constraint("Horizontal", 1))
sketch16.addConstraint(Sketcher.Constraint("Vertical", 2))
sketch16.addConstraint(Sketcher.Constraint("Horizontal", 3))
sketch16.addConstraint(Sketcher.Constraint("DistanceX", 1, 2, 1, 1, Q("10 in")))
sketch16.addConstraint(Sketcher.Constraint("DistanceY", 0, 2, 0, 1, Q("1 in")))
sketch16.addConstraint(Sketcher.Constraint("DistanceX", -1, 1, 0, 2, Q("16 in")))
sketch16.addConstraint(Sketcher.Constraint("DistanceY", 0, 2, -1, 1, Q("16 in")))
sketch16.setExpression("Constraints[8]", "Params.sketch16_width")
sketch16.setExpression("Constraints[9]", "Params.sketch16_height")
pocket7 = body.newObject("PartDesign::Pocket", "Pocket006")
pocket7.Profile = sketch16
pocket7.Type = "UpToFirst"
pocket7.Reversed = True

# Sketch on XY plane
sketch17 = body.newObject("Sketcher::SketchObject", "Sketch016")
sketch17.AttachmentSupport = (doc.getObject("XY_Plane"), [""])
sketch17.MapMode = "FlatFace"
sketch17.AttachmentOffset = App.Placement(Vector(0, 0, -15 * 25.4), App.Rotation())
add_polygon(sketch17, [(406, -457), (406, -483), (152, -483), (152, -457)])  # lines 0-3
sketch17.addConstraint(Sketcher.Constraint("Vertical", 0))
sketch17.addConstraint(Sketcher.Constraint("Horizontal", 1))
sketch17.addConstraint(Sketcher.Constraint("Vertical", 2))
sketch17.addConstraint(Sketcher.Constraint("Horizontal", 3))
sketch17.addConstraint(Sketcher.Constraint("DistanceX", 1, 2, 1, 1, Q("10 in")))
sketch17.addConstraint(Sketcher.Constraint("DistanceY", 0, 2, 0, 1, Q("1 in")))
sketch17.addConstraint(Sketcher.Constraint("DistanceX", -1, 1, 0, 2, Q("16 in")))
sketch17.addConstraint(Sketcher.Constraint("DistanceY", 0, 2, -1, 1, Q("19 in")))
sketch17.setExpression("Constraints[8]", "Params.sketch17_width")
sketch17.setExpression("Constraints[9]", "Params.sketch17_height")
pocket8 = body.newObject("PartDesign::Pocket", "Pocket007")
pocket8.Profile = sketch17
pocket8.Type = "UpToFirst"
pocket8.Reversed = True

# Sketch on XY plane
sketch18 = body.newObject("Sketcher::SketchObject", "Sketch017")
sketch18.AttachmentSupport = (doc.getObject("XY_Plane"), [""])
sketch18.MapMode = "FlatFace"
sketch18.AttachmentOffset = App.Placement(Vector(0, 0, -15 * 25.4), App.Rotation())
add_polygon(sketch18, [(406, -533), (406, -559), (152, -559), (152, -533)])  # lines 0-3
sketch18.addConstraint(Sketcher.Constraint("Vertical", 0))
sketch18.addConstraint(Sketcher.Constraint("Horizontal", 1))
sketch18.addConstraint(Sketcher.Constraint("Vertical", 2))
sketch18.addConstraint(Sketcher.Constraint("Horizontal", 3))
sketch18.addConstraint(Sketcher.Constraint("DistanceX", 1, 2, 1, 1, Q("10 in")))
sketch18.addConstraint(Sketcher.Constraint("DistanceY", 0, 2, 0, 1, Q("1 in")))
sketch18.addConstraint(Sketcher.Constraint("DistanceX", -1, 1, 0, 2, Q("16 in")))
sketch18.addConstraint(Sketcher.Constraint("DistanceY", 0, 2, -1, 1, Q("22 in")))
sketch18.setExpression("Constraints[8]", "Params.sketch18_width")
sketch18.setExpression("Constraints[9]", "Params.sketch18_height")
pocket9 = body.newObject("PartDesign::Pocket", "Pocket008")
pocket9.Profile = sketch18
pocket9.Type = "UpToFirst"
pocket9.Reversed = True

# Sketch on XY plane
sketch19 = body.newObject("Sketcher::SketchObject", "Sketch018")
sketch19.AttachmentSupport = (doc.getObject("XY_Plane"), [""])
sketch19.MapMode = "FlatFace"
sketch19.AttachmentOffset = App.Placement(Vector(0, 0, 15 * 25.4), App.Rotation())
add_polygon(sketch19, [(-508, -26), (-508, -733), (-13, -733), (-13, -26)])  # lines 0-3
add_polygon(sketch19, [(-15, -731), (-505, -731), (-505, -29), (-15, -29)])  # lines 4-7
add_polygon(sketch19, [(13, -26), (13, -733), (508, -733), (508, -26)])  # lines 8-11
add_polygon(sketch19, [(505, -731), (15, -731), (15, -29), (505, -29)])  # lines 12-15
sketch19.addConstraint(Sketcher.Constraint("Vertical", 0))
sketch19.addConstraint(Sketcher.Constraint("Horizontal", 1))
sketch19.addConstraint(Sketcher.Constraint("Vertical", 2))
sketch19.addConstraint(Sketcher.Constraint("Horizontal", 3))
sketch19.addConstraint(Sketcher.Constraint("Horizontal", 4))
sketch19.addConstraint(Sketcher.Constraint("Vertical", 5))
sketch19.addConstraint(Sketcher.Constraint("Horizontal", 6))
sketch19.addConstraint(Sketcher.Constraint("Vertical", 7))
sketch19.addConstraint(Sketcher.Constraint("Vertical", 8))
sketch19.addConstraint(Sketcher.Constraint("Horizontal", 9))
sketch19.addConstraint(Sketcher.Constraint("Vertical", 10))
sketch19.addConstraint(Sketcher.Constraint("Horizontal", 11))
sketch19.addConstraint(Sketcher.Constraint("Horizontal", 12))
sketch19.addConstraint(Sketcher.Constraint("Vertical", 13))
sketch19.addConstraint(Sketcher.Constraint("Horizontal", 14))
sketch19.addConstraint(Sketcher.Constraint("Vertical", 15))
sketch19.addConstraint(Sketcher.Constraint("Symmetric", 1, 2, 8, 2, -2))
sketch19.addConstraint(Sketcher.Constraint("Symmetric", 3, 2, 10, 2, -2))
sketch19.addConstraint(Sketcher.Constraint("Symmetric", 7, 2, 12, 2, -2))
sketch19.addConstraint(Sketcher.Constraint("Symmetric", 5, 2, 14, 2, -2))
sketch19.addConstraint(Sketcher.Constraint("DistanceX", 1, 1, 1, 2, Q("19.5 in")))
sketch19.addConstraint(Sketcher.Constraint("DistanceX", 4, 2, 4, 1, Q("19.3 in")))
sketch19.addConstraint(Sketcher.Constraint("DistanceX", 0, 2, -1, 1, Q("20 in")))
sketch19.addConstraint(Sketcher.Constraint("DistanceX", 4, 2, -1, 1, Q("19.9 in")))
sketch19.addConstraint(Sketcher.Constraint("DistanceY", 0, 2, 4, 2, Q("0.1 in")))
sketch19.addConstraint(Sketcher.Constraint("DistanceY", 5, 2, 3, 2, Q("0.1 in")))
sketch19.addConstraint(Sketcher.Constraint("DistanceY", 0, 2, 0, 1, Q("706.721299 mm")))
sketch19.addConstraint(Sketcher.Constraint("DistanceY", 0, 2, -1, 1, Q("733.177772 mm")))
sketch19.setExpression("Constraints[36]", "Params.sketch19_width")
sketch19.setExpression("Constraints[37]", "Params.sketch19_width2")
pocket10 = body.newObject("PartDesign::Pocket", "Pocket009")
pocket10.Profile = sketch19
pocket10.setExpression("Length", "Params.pocket10_length")

doc.recompute()
